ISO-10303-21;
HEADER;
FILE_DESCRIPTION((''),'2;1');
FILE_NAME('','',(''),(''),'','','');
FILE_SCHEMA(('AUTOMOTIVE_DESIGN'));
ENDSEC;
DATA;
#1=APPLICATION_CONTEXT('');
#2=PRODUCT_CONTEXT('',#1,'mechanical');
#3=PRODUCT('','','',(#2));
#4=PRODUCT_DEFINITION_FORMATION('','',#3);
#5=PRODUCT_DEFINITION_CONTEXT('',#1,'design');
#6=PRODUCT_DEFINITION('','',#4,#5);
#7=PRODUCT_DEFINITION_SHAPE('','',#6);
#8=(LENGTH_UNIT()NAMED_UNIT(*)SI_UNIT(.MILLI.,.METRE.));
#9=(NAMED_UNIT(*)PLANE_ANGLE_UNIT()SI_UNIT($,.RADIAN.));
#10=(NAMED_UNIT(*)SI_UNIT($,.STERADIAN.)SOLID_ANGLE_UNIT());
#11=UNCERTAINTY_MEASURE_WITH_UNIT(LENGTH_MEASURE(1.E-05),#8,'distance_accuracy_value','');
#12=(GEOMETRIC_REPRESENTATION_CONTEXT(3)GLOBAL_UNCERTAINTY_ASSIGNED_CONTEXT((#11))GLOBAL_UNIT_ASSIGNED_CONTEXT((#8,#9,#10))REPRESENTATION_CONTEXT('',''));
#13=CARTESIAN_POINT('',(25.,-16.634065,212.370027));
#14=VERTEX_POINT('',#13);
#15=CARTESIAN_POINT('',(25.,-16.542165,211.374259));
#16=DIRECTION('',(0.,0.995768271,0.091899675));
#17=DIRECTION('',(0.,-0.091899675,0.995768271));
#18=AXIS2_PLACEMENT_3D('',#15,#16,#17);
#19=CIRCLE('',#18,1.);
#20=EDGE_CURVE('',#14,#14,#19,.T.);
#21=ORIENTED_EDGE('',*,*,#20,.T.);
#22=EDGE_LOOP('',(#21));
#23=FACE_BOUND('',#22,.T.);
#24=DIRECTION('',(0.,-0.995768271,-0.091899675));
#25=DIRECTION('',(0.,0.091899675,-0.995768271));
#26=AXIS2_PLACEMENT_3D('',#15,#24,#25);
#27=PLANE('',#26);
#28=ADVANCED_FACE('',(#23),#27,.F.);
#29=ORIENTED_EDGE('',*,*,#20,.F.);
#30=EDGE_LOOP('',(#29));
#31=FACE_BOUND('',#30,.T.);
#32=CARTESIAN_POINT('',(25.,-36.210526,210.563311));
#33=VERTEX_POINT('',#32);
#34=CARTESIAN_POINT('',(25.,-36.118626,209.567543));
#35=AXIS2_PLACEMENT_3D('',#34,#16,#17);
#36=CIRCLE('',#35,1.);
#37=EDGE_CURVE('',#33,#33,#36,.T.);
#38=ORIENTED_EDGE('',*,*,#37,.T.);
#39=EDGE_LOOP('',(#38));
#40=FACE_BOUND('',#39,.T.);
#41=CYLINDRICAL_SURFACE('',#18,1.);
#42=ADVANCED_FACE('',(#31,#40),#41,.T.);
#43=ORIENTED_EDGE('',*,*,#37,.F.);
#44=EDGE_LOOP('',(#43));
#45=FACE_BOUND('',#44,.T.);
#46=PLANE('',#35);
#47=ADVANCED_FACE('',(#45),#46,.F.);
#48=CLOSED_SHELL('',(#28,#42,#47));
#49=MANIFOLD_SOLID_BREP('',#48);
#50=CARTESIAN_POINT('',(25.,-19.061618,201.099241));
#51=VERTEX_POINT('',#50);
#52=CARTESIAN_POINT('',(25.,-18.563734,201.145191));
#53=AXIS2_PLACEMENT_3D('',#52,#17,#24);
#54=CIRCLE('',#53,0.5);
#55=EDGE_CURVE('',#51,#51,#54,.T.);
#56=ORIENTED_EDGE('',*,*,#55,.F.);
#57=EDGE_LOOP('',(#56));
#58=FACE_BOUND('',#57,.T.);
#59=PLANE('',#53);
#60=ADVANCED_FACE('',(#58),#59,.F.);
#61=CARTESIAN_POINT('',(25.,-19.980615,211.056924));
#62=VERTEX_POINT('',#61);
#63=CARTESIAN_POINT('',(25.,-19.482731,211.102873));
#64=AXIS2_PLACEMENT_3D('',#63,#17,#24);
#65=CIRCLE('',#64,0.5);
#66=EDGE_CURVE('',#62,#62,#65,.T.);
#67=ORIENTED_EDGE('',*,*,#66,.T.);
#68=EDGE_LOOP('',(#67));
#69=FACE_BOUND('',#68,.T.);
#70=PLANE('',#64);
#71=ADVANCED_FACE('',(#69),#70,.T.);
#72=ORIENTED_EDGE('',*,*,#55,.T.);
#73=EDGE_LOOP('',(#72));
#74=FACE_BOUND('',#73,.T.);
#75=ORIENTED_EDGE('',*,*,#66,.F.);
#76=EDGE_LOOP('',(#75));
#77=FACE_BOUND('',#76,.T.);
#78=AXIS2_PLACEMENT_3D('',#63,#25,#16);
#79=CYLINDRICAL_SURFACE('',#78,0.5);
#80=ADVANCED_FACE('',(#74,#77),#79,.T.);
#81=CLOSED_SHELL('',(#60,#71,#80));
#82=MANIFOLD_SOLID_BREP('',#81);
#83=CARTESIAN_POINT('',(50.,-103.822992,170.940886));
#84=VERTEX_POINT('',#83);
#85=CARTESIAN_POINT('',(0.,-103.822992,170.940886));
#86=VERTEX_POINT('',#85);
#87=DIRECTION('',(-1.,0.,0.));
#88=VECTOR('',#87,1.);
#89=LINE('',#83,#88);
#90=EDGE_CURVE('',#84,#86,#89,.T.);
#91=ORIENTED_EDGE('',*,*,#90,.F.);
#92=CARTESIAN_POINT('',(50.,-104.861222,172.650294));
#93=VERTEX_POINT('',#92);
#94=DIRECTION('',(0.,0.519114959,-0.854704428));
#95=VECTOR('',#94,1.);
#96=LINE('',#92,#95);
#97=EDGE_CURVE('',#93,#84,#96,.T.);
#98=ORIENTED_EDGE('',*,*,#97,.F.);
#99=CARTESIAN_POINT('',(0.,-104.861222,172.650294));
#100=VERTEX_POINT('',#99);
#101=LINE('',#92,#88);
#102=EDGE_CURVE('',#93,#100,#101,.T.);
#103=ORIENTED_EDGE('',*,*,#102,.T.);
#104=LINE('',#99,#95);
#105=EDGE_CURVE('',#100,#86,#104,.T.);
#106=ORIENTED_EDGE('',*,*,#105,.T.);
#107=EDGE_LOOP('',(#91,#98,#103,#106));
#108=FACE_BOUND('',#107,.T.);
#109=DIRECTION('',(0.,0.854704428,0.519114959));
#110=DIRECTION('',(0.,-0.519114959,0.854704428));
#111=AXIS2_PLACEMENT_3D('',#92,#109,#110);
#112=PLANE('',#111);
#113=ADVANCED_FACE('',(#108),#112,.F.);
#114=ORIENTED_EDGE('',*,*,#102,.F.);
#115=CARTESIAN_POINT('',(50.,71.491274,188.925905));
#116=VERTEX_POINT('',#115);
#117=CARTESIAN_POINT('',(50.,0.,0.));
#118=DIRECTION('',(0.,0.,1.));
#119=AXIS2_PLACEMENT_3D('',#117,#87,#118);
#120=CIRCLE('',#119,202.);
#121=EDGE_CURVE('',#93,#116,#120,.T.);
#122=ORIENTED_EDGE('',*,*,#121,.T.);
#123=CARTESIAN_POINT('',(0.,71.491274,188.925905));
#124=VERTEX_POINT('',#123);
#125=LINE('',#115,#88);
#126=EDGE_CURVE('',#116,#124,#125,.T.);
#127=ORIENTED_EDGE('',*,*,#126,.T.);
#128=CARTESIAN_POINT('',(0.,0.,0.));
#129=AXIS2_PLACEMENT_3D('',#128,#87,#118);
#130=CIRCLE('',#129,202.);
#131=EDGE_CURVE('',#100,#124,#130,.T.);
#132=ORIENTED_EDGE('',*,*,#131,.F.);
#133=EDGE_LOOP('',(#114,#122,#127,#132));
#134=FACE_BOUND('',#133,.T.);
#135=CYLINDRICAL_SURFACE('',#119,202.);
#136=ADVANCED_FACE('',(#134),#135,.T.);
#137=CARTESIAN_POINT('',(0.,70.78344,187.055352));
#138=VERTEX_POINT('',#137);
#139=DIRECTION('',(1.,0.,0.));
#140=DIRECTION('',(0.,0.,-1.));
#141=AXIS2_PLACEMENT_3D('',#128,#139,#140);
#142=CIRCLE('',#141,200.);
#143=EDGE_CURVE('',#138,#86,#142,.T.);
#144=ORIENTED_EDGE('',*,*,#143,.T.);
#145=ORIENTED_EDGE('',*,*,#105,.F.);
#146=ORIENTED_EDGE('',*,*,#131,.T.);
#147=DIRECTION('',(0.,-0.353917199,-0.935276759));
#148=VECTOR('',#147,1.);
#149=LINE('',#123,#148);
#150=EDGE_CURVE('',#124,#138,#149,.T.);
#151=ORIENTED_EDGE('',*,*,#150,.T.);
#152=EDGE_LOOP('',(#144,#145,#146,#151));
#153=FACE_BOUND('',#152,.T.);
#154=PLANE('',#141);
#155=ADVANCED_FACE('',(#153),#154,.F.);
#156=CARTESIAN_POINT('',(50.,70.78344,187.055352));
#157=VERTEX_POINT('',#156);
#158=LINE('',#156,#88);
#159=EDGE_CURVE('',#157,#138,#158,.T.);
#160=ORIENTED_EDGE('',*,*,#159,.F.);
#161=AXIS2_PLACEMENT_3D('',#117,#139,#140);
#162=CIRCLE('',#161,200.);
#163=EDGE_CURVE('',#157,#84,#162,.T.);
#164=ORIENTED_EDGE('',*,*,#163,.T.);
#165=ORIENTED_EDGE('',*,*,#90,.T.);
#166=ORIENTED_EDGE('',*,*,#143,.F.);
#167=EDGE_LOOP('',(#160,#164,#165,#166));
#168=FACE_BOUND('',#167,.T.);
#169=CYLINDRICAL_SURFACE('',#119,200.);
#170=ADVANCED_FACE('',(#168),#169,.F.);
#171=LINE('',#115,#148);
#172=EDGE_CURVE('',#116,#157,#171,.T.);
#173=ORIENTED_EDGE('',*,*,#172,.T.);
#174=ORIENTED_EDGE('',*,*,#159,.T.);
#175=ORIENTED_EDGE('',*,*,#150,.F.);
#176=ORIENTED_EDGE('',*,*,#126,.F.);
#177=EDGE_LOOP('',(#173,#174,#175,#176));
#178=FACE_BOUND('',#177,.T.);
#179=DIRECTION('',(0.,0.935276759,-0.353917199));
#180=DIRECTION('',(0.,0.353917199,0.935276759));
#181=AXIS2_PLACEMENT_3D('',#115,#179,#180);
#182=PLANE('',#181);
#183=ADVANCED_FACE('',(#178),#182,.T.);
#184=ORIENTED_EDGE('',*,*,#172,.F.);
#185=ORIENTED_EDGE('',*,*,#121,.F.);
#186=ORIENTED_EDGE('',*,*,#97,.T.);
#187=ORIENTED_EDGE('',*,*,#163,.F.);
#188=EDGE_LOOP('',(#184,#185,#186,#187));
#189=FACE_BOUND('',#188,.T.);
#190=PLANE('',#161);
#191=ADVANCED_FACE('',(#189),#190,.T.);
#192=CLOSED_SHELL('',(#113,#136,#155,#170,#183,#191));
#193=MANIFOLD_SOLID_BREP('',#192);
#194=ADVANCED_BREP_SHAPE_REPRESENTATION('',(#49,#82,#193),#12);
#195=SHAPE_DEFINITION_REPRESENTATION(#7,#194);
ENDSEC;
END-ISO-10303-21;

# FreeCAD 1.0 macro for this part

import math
import FreeCAD as App
import Part
import Sketcher

V = App.Vector
Q = App.Units.Quantity

doc = App.newDocument("Part")
params = doc.addObject("Spreadsheet::Sheet", "Params")
for row, (alias, value) in enumerate([
    ("sketch1_radius", "202 mm"),
    ("sketch1_radius2", "200 mm"),
    ("pad1_length", "50 mm"),
    ("sketch2_diameter", "1 mm"),
    ("pad2_length", "10 mm"),
    ("sketch3_width", "1 mm"),
    ("revolution_angle", "360 deg"),
], start=1):
    params.set(f"A{row}", alias)
    params.set(f"B{row}", "=" + value)
    params.setAlias(f"B{row}", alias)

body = doc.addObject("PartDesign::Body", "Body")

# Sketch on YZ plane
sketch1 = doc.addObject("Sketcher::SketchObject", "Sketch")
body.addObject(sketch1)
sketch1.AttachmentSupport = (doc.YZ_Plane, [""])
sketch1.MapMode = "FlatFace"
sketch1.addGeometry([
    Part.LineSegment(V(70.8, 187.1, 0), V(71.5, 188.9, 0)),
    Part.ArcOfCircle(Part.Circle(V(0, 0, 0), V(0, 0, 1), 202), math.radians(69), math.radians(121)),
    Part.LineSegment(V(-104.9, 172.7, 0), V(-103.8, 170.9, 0)),
    Part.ArcOfCircle(Part.Circle(V(0, 0, 0), V(0, 0, 1), 200), math.radians(69), math.radians(121)),
], False)
sketch1.addConstraint([
    Sketcher.Constraint("Coincident", 0, 2, 1, 1),
    Sketcher.Constraint("Coincident", 1, 2, 2, 1),
    Sketcher.Constraint("Coincident", 2, 2, 3, 2),
    Sketcher.Constraint("Coincident", 3, 1, 0, 1),
    Sketcher.Constraint("Coincident", 1, 3, -1, 1),
    Sketcher.Constraint("Coincident", 3, 3, -1, 1),
    Sketcher.Constraint("Radius", 1, Q("202 mm")),
    Sketcher.Constraint("Radius", 3, Q("200 mm")),
    Sketcher.Constraint("DistanceX", 1, 2, -1, 1, Q("104.861222 mm")),
    Sketcher.Constraint("DistanceX", 2, 2, -1, 1, Q("103.822992 mm")),
    Sketcher.Constraint("DistanceX", -1, 1, 3, 1, Q("70.78344 mm")),
    Sketcher.Constraint("DistanceY", 1, 2, 0, 2, Q("16.275611 mm")),
])
sketch1.setExpression("Constraints[6]", "Params.sketch1_radius")
sketch1.setExpression("Constraints[7]", "Params.sketch1_radius2")
pad1 = doc.addObject("PartDesign::Pad", "Pad")
body.addObject(pad1)
pad1.Profile = sketch1
pad1.setExpression("Length", "Params.pad1_length")
body2 = doc.addObject("PartDesign::Body", "Body001")

# Sketch on an angled plane
sketch2 = doc.addObject("Sketcher::SketchObject", "Sketch001")
body2.addObject(sketch2)
sketch2.Placement = App.Placement(V(0, -18.563734, 201.145191), App.Rotation(V(1, 0, 0), V(0, 0.995768271, 0.091899675), V(0, -0.091899675, 0.995768271), "ZXY"))
sketch2.addGeometry(Part.Circle(V(25, 0, 0), V(0, 0, 1), 0.5), False)
sketch2.addConstraint([
    Sketcher.Constraint("PointOnObject", 0, 3, -1),
    Sketcher.Constraint("Diameter", 0, Q("1 mm")),
    Sketcher.Constraint("DistanceX", -1, 1, 0, 3, Q("25 mm")),
])
sketch2.setExpression("Constraints[1]", "Params.sketch2_diameter")
pad2 = doc.addObject("PartDesign::Pad", "Pad001")
body2.addObject(pad2)
pad2.Profile = sketch2
pad2.setExpression("Length", "Params.pad2_length")
body3 = doc.addObject("PartDesign::Body", "Body002")

# Sketch on an angled plane
sketch3 = doc.addObject("Sketcher::SketchObject", "Sketch002")
body3.addObject(sketch3)
sketch3.Placement = App.Placement(V(0, -19.482731, 211.102873), App.Rotation(V(1, 0, 0), V(0, 0.995768271, 0.091899675), V(0, -0.091899675, 0.995768271), "ZXY"))
sketch3.addGeometry([
    Part.LineSegment(V(25, 3, 0), V(25, -16.7, 0)),
    Part.LineSegment(V(25, -16.7, 0), V(26, -16.7, 0)),
    Part.LineSegment(V(26, -16.7, 0), V(26, 3, 0)),
    Part.LineSegment(V(26, 3, 0), V(25, 3, 0)),
], False)
sketch3.addGeometry(Part.LineSegment(V(25, 3, 0), V(25, -16.7, 0)), True)  # axis
sketch3.addConstraint([
    Sketcher.Constraint("Coincident", 0, 2, 1, 1),
    Sketcher.Constraint("Coincident", 1, 2, 2, 1),
    Sketcher.Constraint("Coincident", 2, 2, 3, 1),
    Sketcher.Constraint("Coincident", 3, 2, 0, 1),
    Sketcher.Constraint("Vertical", 0),
    Sketcher.Constraint("Horizontal", 1),
    Sketcher.Constraint("Vertical", 2),
    Sketcher.Constraint("Horizontal", 3),
    Sketcher.Constraint("Vertical", 4),
    Sketcher.Constraint("Coincident", 4, 1, 3, 2),
    Sketcher.Constraint("Horizontal", 1, 2, 4, 2),
    Sketcher.Constraint("DistanceX", 1, 1, 1, 2, Q("1 mm")),
    Sketcher.Constraint("DistanceX", -1, 1, 0, 2, Q("25 mm")),
    Sketcher.Constraint("DistanceY", 0, 2, 0, 1, Q("19.659655 mm")),
    Sketcher.Constraint("DistanceY", 0, 2, -1, 1, Q("16.706593 mm")),
])
sketch3.setExpression("Constraints[11]", "Params.sketch3_width")
revolution = doc.addObject("PartDesign::Revolution", "Revolution")
body3.addObject(revolution)
revolution.Profile = sketch3
revolution.ReferenceAxis = (sketch3, ["Axis0"])
revolution.setExpression("Angle", "Params.revolution_angle")

doc.recompute()
